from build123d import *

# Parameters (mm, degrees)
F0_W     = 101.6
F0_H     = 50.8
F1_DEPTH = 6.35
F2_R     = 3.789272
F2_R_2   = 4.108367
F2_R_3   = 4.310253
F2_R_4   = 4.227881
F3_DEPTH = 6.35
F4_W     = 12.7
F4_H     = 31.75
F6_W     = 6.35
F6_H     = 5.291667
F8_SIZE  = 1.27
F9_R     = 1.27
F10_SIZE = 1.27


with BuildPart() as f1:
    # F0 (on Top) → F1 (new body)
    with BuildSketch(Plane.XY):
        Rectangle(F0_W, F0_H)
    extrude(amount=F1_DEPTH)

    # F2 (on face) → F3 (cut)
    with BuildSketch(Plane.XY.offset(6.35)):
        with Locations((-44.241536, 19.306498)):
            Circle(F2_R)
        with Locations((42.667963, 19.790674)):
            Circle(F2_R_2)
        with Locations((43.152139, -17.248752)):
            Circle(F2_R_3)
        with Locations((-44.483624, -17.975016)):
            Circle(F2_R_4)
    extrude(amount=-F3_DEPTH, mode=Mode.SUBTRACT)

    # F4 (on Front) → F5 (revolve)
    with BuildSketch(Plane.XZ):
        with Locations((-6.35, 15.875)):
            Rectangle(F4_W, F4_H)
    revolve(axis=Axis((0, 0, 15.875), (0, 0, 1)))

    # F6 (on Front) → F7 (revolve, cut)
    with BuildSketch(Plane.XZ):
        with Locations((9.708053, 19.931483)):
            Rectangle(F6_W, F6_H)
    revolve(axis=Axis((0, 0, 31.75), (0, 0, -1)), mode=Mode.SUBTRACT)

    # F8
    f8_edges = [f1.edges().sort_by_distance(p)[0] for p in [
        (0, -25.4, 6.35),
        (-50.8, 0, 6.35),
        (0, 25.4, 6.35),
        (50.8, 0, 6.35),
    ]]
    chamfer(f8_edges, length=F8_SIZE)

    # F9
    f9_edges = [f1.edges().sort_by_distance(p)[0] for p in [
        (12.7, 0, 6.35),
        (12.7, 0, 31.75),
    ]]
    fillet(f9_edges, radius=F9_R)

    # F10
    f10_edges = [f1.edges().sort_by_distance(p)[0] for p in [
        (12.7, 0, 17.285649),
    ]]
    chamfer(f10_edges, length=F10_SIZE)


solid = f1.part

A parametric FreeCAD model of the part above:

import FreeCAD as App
import Part
import Sketcher
from FreeCAD import Vector
Q = App.Units.Quantity


def edges_at(feature, points):
    """Names of the edges that pass closest to the given points."""
    edges = feature.Shape.Edges
    near = lambda p: min(range(len(edges)), key=lambda i: edges[i].distToShape(Part.Vertex(*p))[0])
    return sorted({f"Edge{near(p) + 1}" for p in points})

doc = App.newDocument("Part")
body = doc.addObject("PartDesign::Body", "Body")

# Sketch on XY plane
sketch1 = doc.addObject("Sketcher::SketchObject", "Sketch")
body.addObject(sketch1)
sketch1.AttachmentSupport = (doc.XY_Plane, [""])
sketch1.MapMode = "FlatFace"
sketch1.addGeometry(Part.LineSegment(Vector(-50.8, 25.4, 0), Vector(-50.8, -25.4, 0)), False)
sketch1.addGeometry(Part.LineSegment(Vector(-50.8, -25.4, 0), Vector(50.8, -25.4, 0)), False)
sketch1.addGeometry(Part.LineSegment(Vector(50.8, -25.4, 0), Vector(50.8, 25.4, 0)), False)
sketch1.addGeometry(Part.LineSegment(Vector(50.8, 25.4, 0), Vector(-50.8, 25.4, 0)), False)
sketch1.addConstraint(Sketcher.Constraint("Coincident", 0, 2, 1, 1))
sketch1.addConstraint(Sketcher.Constraint("Coincident", 1, 2, 2, 1))
sketch1.addConstraint(Sketcher.Constraint("Coincident", 2, 2, 3, 1))
sketch1.addConstraint(Sketcher.Constraint("Coincident", 3, 2, 0, 1))
sketch1.addConstraint(Sketcher.Constraint("Vertical", 0))
sketch1.addConstraint(Sketcher.Constraint("Horizontal", 1))
sketch1.addConstraint(Sketcher.Constraint("Vertical", 2))
sketch1.addConstraint(Sketcher.Constraint("Horizontal", 3))
sketch1.addConstraint(Sketcher.Constraint("Symmetric", 0, 2, 2, 2, -1, 1))
sketch1.addConstraint(Sketcher.Constraint("DistanceX", 1, 1, 1, 2, Q("4 in")))
sketch1.addConstraint(Sketcher.Constraint("DistanceY", 0, 2, 0, 1, Q("2 in")))
pad1 = doc.addObject("PartDesign::Pad", "Pad")
body.addObject(pad1)
pad1.Profile = sketch1
pad1.Length = Q("0.25 in")

# Sketch on XY plane
sketch2 = doc.addObject("Sketcher::SketchObject", "Sketch001")
body.addObject(sketch2)
sketch2.AttachmentSupport = (doc.XY_Plane, [""])
sketch2.MapMode = "FlatFace"
sketch2.AttachmentOffset = App.Placement(Vector(0, 0, 0.25 * 25.4), App.Rotation())
sketch2.addGeometry(Part.Circle(Vector(-44.241536, 19.306498, 0), Vector(0, 0, 1), 3.789272), False)
sketch2.addGeometry(Part.Circle(Vector(42.667963, 19.790674, 0), Vector(0, 0, 1), 4.108367), False)
sketch2.addGeometry(Part.Circle(Vector(43.152139, -17.248752, 0), Vector(0, 0, 1), 4.310253), False)
sketch2.addGeometry(Part.Circle(Vector(-44.483624, -17.975016, 0), Vector(0, 0, 1), 4.227881), False)
sketch2.addConstraint(Sketcher.Constraint("Diameter", 0, Q("7.578544 mm")))
sketch2.addConstraint(Sketcher.Constraint("Diameter", 1, Q("8.216734 mm")))
sketch2.addConstraint(Sketcher.Constraint("Diameter", 2, Q("8.620506 mm")))
sketch2.addConstraint(Sketcher.Constraint("Diameter", 3, Q("8.455762 mm")))
sketch2.addConstraint(Sketcher.Constraint("DistanceY", -1, 1, 0, 3, Q("19.306498 mm")))
sketch2.addConstraint(Sketcher.Constraint("DistanceX", 0, 3, 1, 3, Q("86.909499 mm")))
sketch2.addConstraint(Sketcher.Constraint("DistanceX", -1, 1, 2, 3, Q("43.152139 mm")))
sketch2.addConstraint(Sketcher.Constraint("DistanceY", 2, 3, -1, 1, Q("17.248752 mm")))
sketch2.addConstraint(Sketcher.Constraint("DistanceY", 3, 3, 1, 3, Q("37.76569 mm")))
sketch2.addConstraint(Sketcher.Constraint("DistanceX", 0, 3, -1, 1, Q("44.241536 mm")))
sketch2.addConstraint(Sketcher.Constraint("DistanceY", -1, 1, 1, 3, Q("19.790674 mm")))
sketch2.addConstraint(Sketcher.Constraint("DistanceX", 3, 3, -1, 1, Q("44.483624 mm")))
pocket1 = doc.addObject("PartDesign::Pocket", "Pocket")
body.addObject(pocket1)
pocket1.Profile = sketch2
pocket1.Length = Q("0.25 in")

# Sketch on XZ plane
sketch3 = doc.addObject("Sketcher::SketchObject", "Sketch002")
body.addObject(sketch3)
sketch3.AttachmentSupport = (doc.XZ_Plane, [""])
sketch3.MapMode = "FlatFace"
sketch3.addGeometry(Part.LineSegment(Vector(-12.7, 31.75, 0), Vector(-12.7, 0, 0)), False)
sketch3.addGeometry(Part.LineSegment(Vector(-12.7, 0, 0), Vector(0, 0, 0)), False)
sketch3.addGeometry(Part.LineSegment(Vector(0, 0, 0), Vector(0, 31.75, 0)), False)
sketch3.addGeometry(Part.LineSegment(Vector(0, 31.75, 0), Vector(-12.7, 31.75, 0)), False)
sketch3.addConstraint(Sketcher.Constraint("Coincident", 0, 2, 1, 1))
sketch3.addConstraint(Sketcher.Constraint("Coincident", 1, 2, 2, 1))
sketch3.addConstraint(Sketcher.Constraint("Coincident", 2, 2, 3, 1))
sketch3.addConstraint(Sketcher.Constraint("Coincident", 3, 2, 0, 1))
sketch3.addConstraint(Sketcher.Constraint("Vertical", 0))
sketch3.addConstraint(Sketcher.Constraint("Horizontal", 1))
sketch3.addConstraint(Sketcher.Constraint("Vertical", 2))
sketch3.addConstraint(Sketcher.Constraint("Horizontal", 3))
sketch3.addConstraint(Sketcher.Constraint("Coincident", 1, 2, -1, 1))
sketch3.addConstraint(Sketcher.Constraint("DistanceX", 1, 1, 1, 2, Q("0.5 in")))
sketch3.addConstraint(Sketcher.Constraint("DistanceY", 0, 2, 0, 1, Q("1.25 in")))
revolution = doc.addObject("PartDesign::Revolution", "Revolution")
body.addObject(revolution)
revolution.Profile = sketch3
revolution.ReferenceAxis = (sketch3, ["V_Axis"])
revolution.Angle = 360

# Sketch on XZ plane
sketch4 = doc.addObject("Sketcher::SketchObject", "Sketch003")
body.addObject(sketch4)
sketch4.AttachmentSupport = (doc.XZ_Plane, [""])
sketch4.MapMode = "FlatFace"
sketch4.addGeometry(Part.LineSegment(Vector(6.533053, 22.577316, 0), Vector(6.533053, 17.28565, 0)), False)
sketch4.addGeometry(Part.LineSegment(Vector(6.533053, 17.28565, 0), Vector(12.883053, 17.28565, 0)), False)
sketch4.addGeometry(Part.LineSegment(Vector(12.883053, 17.28565, 0), Vector(12.883053, 22.577316, 0)), False)
sketch4.addGeometry(Part.LineSegment(Vector(12.883053, 22.577316, 0), Vector(6.533053, 22.577316, 0)), False)
sketch4.addConstraint(Sketcher.Constraint("Coincident", 0, 2, 1, 1))
sketch4.addConstraint(Sketcher.Constraint("Coincident", 1, 2, 2, 1))
sketch4.addConstraint(Sketcher.Constraint("Coincident", 2, 2, 3, 1))
sketch4.addConstraint(Sketcher.Constraint("Coincident", 3, 2, 0, 1))
sketch4.addConstraint(Sketcher.Constraint("Vertical", 0))
sketch4.addConstraint(Sketcher.Constraint("Horizontal", 1))
sketch4.addConstraint(Sketcher.Constraint("Vertical", 2))
sketch4.addConstraint(Sketcher.Constraint("Horizontal", 3))
sketch4.addConstraint(Sketcher.Constraint("DistanceX", 1, 1, 1, 2, Q("0.25 in")))
sketch4.addConstraint(Sketcher.Constraint("DistanceY", 0, 2, 0, 1, Q("5.291667 mm")))
sketch4.addConstraint(Sketcher.Constraint("DistanceY", -1, 1, 0, 2, Q("17.28565 mm")))
sketch4.addConstraint(Sketcher.Constraint("DistanceX", -1, 1, 0, 2, Q("6.533053 mm")))
groove = doc.addObject("PartDesign::Groove", "Groove")
body.addObject(groove)
groove.Profile = sketch4
groove.ReferenceAxis = (sketch4, ["V_Axis"])
groove.Angle = 360
doc.recompute()

chamfer = doc.addObject("PartDesign::Chamfer", "Chamfer")
body.addObject(chamfer)
chamfer.Base = (groove, edges_at(groove, [
    (0, -25.4, 6.35),
    (-50.8, 0, 6.35),
    (0, 25.4, 6.35),
    (50.8, 0, 6.35),
]))
chamfer.Size = Q("0.05 in")
doc.recompute()

fillet = doc.addObject("PartDesign::Fillet", "Fillet")
body.addObject(fillet)
fillet.Base = (chamfer, edges_at(chamfer, [(12.7, 0, 6.35), (12.7, 0, 31.75)]))
fillet.Radius = Q("0.05 in")
doc.recompute()

chamfer2 = doc.addObject("PartDesign::Chamfer", "Chamfer001")
body.addObject(chamfer2)
chamfer2.Base = (fillet, edges_at(fillet, [(12.7, 0, 17.286)]))
chamfer2.Size = Q("0.05 in")

doc.recompute()
